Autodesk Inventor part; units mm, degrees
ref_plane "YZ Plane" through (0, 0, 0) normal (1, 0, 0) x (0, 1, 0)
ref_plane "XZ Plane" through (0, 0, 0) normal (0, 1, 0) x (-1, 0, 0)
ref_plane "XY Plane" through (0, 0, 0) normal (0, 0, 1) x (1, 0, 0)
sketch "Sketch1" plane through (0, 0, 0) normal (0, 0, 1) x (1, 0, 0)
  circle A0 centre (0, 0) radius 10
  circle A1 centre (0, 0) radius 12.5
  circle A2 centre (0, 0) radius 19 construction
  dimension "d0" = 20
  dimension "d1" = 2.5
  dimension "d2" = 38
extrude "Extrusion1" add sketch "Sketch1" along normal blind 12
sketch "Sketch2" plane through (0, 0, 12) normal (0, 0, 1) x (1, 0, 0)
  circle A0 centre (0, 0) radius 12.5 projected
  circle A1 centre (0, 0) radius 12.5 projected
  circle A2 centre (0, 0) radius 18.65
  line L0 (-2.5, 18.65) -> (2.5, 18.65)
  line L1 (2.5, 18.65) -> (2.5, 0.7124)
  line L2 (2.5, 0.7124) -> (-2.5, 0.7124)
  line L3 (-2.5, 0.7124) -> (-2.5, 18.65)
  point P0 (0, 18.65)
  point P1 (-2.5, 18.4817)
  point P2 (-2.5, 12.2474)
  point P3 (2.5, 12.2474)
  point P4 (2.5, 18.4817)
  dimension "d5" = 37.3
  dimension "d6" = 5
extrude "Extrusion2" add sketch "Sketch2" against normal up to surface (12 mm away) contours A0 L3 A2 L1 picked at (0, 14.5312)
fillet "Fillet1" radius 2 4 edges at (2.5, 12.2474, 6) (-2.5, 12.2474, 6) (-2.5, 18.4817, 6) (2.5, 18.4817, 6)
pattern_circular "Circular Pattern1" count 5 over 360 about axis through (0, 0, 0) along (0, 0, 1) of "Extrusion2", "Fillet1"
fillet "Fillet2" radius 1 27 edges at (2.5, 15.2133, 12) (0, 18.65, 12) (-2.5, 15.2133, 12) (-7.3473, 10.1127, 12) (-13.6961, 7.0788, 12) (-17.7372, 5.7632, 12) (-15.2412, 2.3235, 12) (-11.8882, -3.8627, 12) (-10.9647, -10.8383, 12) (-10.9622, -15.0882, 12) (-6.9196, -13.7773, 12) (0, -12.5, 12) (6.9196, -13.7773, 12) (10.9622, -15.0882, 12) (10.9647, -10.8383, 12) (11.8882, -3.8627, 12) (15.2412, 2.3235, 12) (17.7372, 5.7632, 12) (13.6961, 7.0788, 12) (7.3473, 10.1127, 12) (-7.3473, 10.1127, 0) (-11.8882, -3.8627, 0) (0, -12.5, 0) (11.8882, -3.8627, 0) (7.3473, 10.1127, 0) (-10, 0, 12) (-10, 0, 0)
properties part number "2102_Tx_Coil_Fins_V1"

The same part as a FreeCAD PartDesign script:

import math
import FreeCAD as App
import Part
import Sketcher


def edges_at(feature, points):
    """Names of the edges that pass closest to the given points."""
    edges = feature.Shape.Edges
    near = lambda p: min(range(len(edges)), key=lambda i: edges[i].distToShape(Part.Vertex(*p))[0])
    return sorted({f"Edge{near(p) + 1}" for p in points})

doc = App.newDocument("Part")
body = doc.addObject("PartDesign::Body", "Body")

sketch1 = doc.addObject("Sketcher::SketchObject", "Sketch")
body.addObject(sketch1)
sketch1.AttachmentSupport = (doc.XY_Plane, [""])
sketch1.MapMode = "FlatFace"
sketch1.addGeometry([
    Part.Circle(App.Vector(0, 0, 0), App.Vector(0, 0, 1), 12),
    Part.Circle(App.Vector(0, 0, 0), App.Vector(0, 0, 1), 10),
], False)
sketch1.addConstraint([
    Sketcher.Constraint("Coincident", 0, 3, -1, 1),
    Sketcher.Constraint("Coincident", 1, 3, -1, 1),
    Sketcher.Constraint("Diameter", 1, 20.0),
    Sketcher.Constraint("Diameter", 0, 25.0),
])
pad1 = doc.addObject("PartDesign::Pad", "Pad")
body.addObject(pad1)
pad1.Profile = sketch1
pad1.Length = 12

sketch2 = doc.addObject("Sketcher::SketchObject", "Sketch001")
body.addObject(sketch2)
sketch2.AttachmentSupport = (doc.XY_Plane, [""])
sketch2.MapMode = "FlatFace"
sketch2.AttachmentOffset = App.Placement(App.Vector(0, 0, 12), App.Rotation())
sketch2.addGeometry([
    Part.ArcOfCircle(Part.Circle(App.Vector(0, 0, 0), App.Vector(0, 0, 1), 12), math.radians(78), math.radians(102)),
    Part.LineSegment(App.Vector(2, 12, 0), App.Vector(2, 18, 0)),
    Part.ArcOfCircle(Part.Circle(App.Vector(0, 0, 0), App.Vector(0, 0, 1), 19), math.radians(82.3), math.radians(97.7)),
    Part.LineSegment(App.Vector(-2, 18, 0), App.Vector(-2, 12, 0)),
], False)
sketch2.addConstraint([
    Sketcher.Constraint("Coincident", 0, 1, 1, 1),
    Sketcher.Constraint("Coincident", 1, 2, 2, 1),
    Sketcher.Constraint("Coincident", 2, 2, 3, 1),
    Sketcher.Constraint("Coincident", 3, 2, 0, 2),
    Sketcher.Constraint("Vertical", 1),
    Sketcher.Constraint("Vertical", 3),
    Sketcher.Constraint("Coincident", 0, 3, -1, 1),
    Sketcher.Constraint("Coincident", 2, 3, -1, 1),
    Sketcher.Constraint("Horizontal", 1, 2, 2, 2),
    Sketcher.Constraint("Radius", 2, 18.65),
    Sketcher.Constraint("DistanceX", 2, 2, 1, 2, 5.0),
    Sketcher.Constraint("Radius", 0, 12.5),
])
pad2 = doc.addObject("PartDesign::Pad", "Pad001")
body.addObject(pad2)
pad2.Profile = sketch2
pad2.Length = 12
pad2.Reversed = True
doc.recompute()

fillet = doc.addObject("PartDesign::Fillet", "Fillet")
body.addObject(fillet)
fillet.Base = (pad2, edges_at(pad2, [
    (2.5, 12.247, 6),
    (-2.5, 12.247, 6),
    (-2.5, 18.482, 6),
    (2.5, 18.482, 6),
]))
fillet.Radius = 2
doc.recompute()

polarpattern = doc.addObject("PartDesign::PolarPattern", "PolarPattern")
body.addObject(polarpattern)
polarpattern.Originals = [pad2, fillet]
polarpattern.Axis = (doc.Z_Axis, [""])
polarpattern.Angle = 360
polarpattern.Occurrences = 5
body.Tip = polarpattern
doc.recompute()

fillet2 = doc.addObject("PartDesign::Fillet", "Fillet001")
body.addObject(fillet2)
fillet2.Base = (polarpattern, edges_at(polarpattern, [
    (2.5, 15.213, 12),
    (0, 18.65, 12),
    (-2.5, 15.213, 12),
    (-7.347, 10.113, 12),
    (-13.696, 7.079, 12),
    (-17.737, 5.763, 12),
    (-15.241, 2.324, 12),
    (-11.888, -3.863, 12),
    (-10.965, -10.838, 12),
    (-10.962, -15.088, 12),
    (-6.92, -13.777, 12),
    (0, -12.5, 12),
    (6.92, -13.777, 12),
    (10.962, -15.088, 12),
    (10.965, -10.838, 12),
    (11.888, -3.863, 12),
    (15.241, 2.324, 12),
    (17.737, 5.763, 12),
    (13.696, 7.079, 12),
    (7.347, 10.113, 12),
    (-7.347, 10.113, 0),
    (-11.888, -3.863, 0),
    (0, -12.5, 0),
    (11.888, -3.863, 0),
    (7.347, 10.113, 0),
    (-10, 0, 12),
    (-10, 0, 0),
]))
fillet2.Radius = 1

doc.recompute()
